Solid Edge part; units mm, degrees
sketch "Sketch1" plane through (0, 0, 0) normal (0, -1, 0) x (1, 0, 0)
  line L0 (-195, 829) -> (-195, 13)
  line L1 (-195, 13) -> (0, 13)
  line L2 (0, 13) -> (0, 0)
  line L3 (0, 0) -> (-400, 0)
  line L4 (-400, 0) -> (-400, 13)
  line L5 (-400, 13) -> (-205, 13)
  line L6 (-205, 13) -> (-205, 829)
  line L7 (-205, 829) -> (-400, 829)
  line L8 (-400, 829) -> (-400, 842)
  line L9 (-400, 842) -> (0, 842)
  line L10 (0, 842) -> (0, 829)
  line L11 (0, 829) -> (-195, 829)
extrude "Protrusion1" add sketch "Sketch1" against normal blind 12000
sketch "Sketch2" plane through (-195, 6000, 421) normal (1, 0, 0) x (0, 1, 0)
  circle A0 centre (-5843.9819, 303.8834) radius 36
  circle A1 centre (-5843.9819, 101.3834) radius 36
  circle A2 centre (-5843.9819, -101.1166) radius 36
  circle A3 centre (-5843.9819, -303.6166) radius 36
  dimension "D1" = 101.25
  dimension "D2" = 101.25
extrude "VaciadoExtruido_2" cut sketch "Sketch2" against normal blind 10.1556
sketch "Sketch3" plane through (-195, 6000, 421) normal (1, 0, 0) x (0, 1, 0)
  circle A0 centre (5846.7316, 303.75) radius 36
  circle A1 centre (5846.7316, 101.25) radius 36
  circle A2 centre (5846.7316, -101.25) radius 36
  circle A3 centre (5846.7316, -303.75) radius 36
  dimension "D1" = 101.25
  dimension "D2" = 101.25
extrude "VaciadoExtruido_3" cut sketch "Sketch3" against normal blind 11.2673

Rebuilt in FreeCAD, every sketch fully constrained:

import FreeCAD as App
import Part
import Sketcher

doc = App.newDocument("Part")
body = doc.addObject("PartDesign::Body", "Body")

# Sketch on XZ plane
sketch1 = body.newObject("Sketcher::SketchObject", "Sketch")
sketch1.AttachmentSupport = (doc.getObject("XZ_Plane"), [""])
sketch1.MapMode = "FlatFace"
sketch1.addGeometry([
    Part.LineSegment(App.Vector(-195, 13, 0), App.Vector(-195, 829, 0)),  # 0
    Part.LineSegment(App.Vector(-195, 829, 0), App.Vector(0, 829, 0)),  # 1
    Part.LineSegment(App.Vector(0, 829, 0), App.Vector(0, 842, 0)),  # 2
    Part.LineSegment(App.Vector(0, 842, 0), App.Vector(-400, 842, 0)),  # 3
    Part.LineSegment(App.Vector(-400, 842, 0), App.Vector(-400, 829, 0)),  # 4
    Part.LineSegment(App.Vector(-400, 829, 0), App.Vector(-205, 829, 0)),  # 5
    Part.LineSegment(App.Vector(-205, 829, 0), App.Vector(-205, 13, 0)),  # 6
    Part.LineSegment(App.Vector(-205, 13, 0), App.Vector(-400, 13, 0)),  # 7
    Part.LineSegment(App.Vector(-400, 13, 0), App.Vector(-400, 0, 0)),  # 8
    Part.LineSegment(App.Vector(-400, 0, 0), App.Vector(0, 0, 0)),  # 9
    Part.LineSegment(App.Vector(0, 0, 0), App.Vector(0, 13, 0)),  # 10
    Part.LineSegment(App.Vector(0, 13, 0), App.Vector(-195, 13, 0)),  # 11
], False)
sketch1.addConstraint([
    Sketcher.Constraint("Coincident", 0, 2, 1, 1),
    Sketcher.Constraint("Coincident", 1, 2, 2, 1),
    Sketcher.Constraint("Coincident", 2, 2, 3, 1),
    Sketcher.Constraint("Coincident", 3, 2, 4, 1),
    Sketcher.Constraint("Coincident", 4, 2, 5, 1),
    Sketcher.Constraint("Coincident", 5, 2, 6, 1),
    Sketcher.Constraint("Coincident", 6, 2, 7, 1),
    Sketcher.Constraint("Coincident", 7, 2, 8, 1),
    Sketcher.Constraint("Coincident", 8, 2, 9, 1),
    Sketcher.Constraint("Coincident", 9, 2, 10, 1),
    Sketcher.Constraint("Coincident", 10, 2, 11, 1),
    Sketcher.Constraint("Coincident", 11, 2, 0, 1),
    Sketcher.Constraint("Vertical", 0),
    Sketcher.Constraint("Horizontal", 1),
    Sketcher.Constraint("Vertical", 2),
    Sketcher.Constraint("Horizontal", 3),
    Sketcher.Constraint("Vertical", 4),
    Sketcher.Constraint("Horizontal", 5),
    Sketcher.Constraint("Vertical", 6),
    Sketcher.Constraint("Horizontal", 7),
    Sketcher.Constraint("Vertical", 8),
    Sketcher.Constraint("Horizontal", 9),
    Sketcher.Constraint("Vertical", 10),
    Sketcher.Constraint("Horizontal", 11),
    Sketcher.Constraint("Coincident", 9, 2, -1, 1),
    Sketcher.Constraint("PointOnObject", 1, 2, -2),
    Sketcher.Constraint("Horizontal", 1, 2, 4, 2),
    Sketcher.Constraint("Horizontal", 7, 2, 10, 2),
    Sketcher.Constraint("Vertical", 4, 2, 7, 2),
    Sketcher.Constraint("Equal", 1, 5),
    Sketcher.Constraint("Equal", 4, 8),
    Sketcher.Constraint("DistanceX", 1, 1, 1, 2, 195.0),
    Sketcher.Constraint("DistanceX", 3, 2, 3, 1, 400.0),
    Sketcher.Constraint("DistanceY", 0, 1, 0, 2, 816.0),
    Sketcher.Constraint("DistanceY", 2, 1, 2, 2, 13.0),
])
pad1 = body.newObject("PartDesign::Pad", "Pad")
pad1.Profile = sketch1
pad1.Length = 12000
pad1.Reversed = True

# Sketch on YZ plane
sketch2 = body.newObject("Sketcher::SketchObject", "Sketch001")
sketch2.AttachmentSupport = (doc.getObject("YZ_Plane"), [""])
sketch2.MapMode = "FlatFace"
sketch2.AttachmentOffset = App.Placement(App.Vector(0, 0, -195), App.Rotation())
sketch2.addGeometry([
    Part.Circle(App.Vector(156, 725, 0), App.Vector(0, 0, 1), 36),
    Part.Circle(App.Vector(156, 522, 0), App.Vector(0, 0, 1), 36),
    Part.Circle(App.Vector(156, 320, 0), App.Vector(0, 0, 1), 36),
    Part.Circle(App.Vector(156, 117, 0), App.Vector(0, 0, 1), 36),
], False)
sketch2.addConstraint([
    Sketcher.Constraint("Equal", 0, 1),
    Sketcher.Constraint("Equal", 1, 2),
    Sketcher.Constraint("Equal", 2, 3),
    Sketcher.Constraint("Vertical", 0, 3, 1, 3),
    Sketcher.Constraint("Vertical", 1, 3, 2, 3),
    Sketcher.Constraint("Vertical", 2, 3, 3, 3),
    Sketcher.Constraint("Diameter", 0, 72.0),
    Sketcher.Constraint("DistanceY", 2, 3, 0, 3, 405.0),
    Sketcher.Constraint("DistanceY", 3, 3, 1, 3, 405.0),
    Sketcher.Constraint("DistanceY", 1, 3, 0, 3, 202.5),
    Sketcher.Constraint("DistanceX", -1, 1, 0, 3, 156.018),
    Sketcher.Constraint("DistanceY", -1, 1, 0, 3, 724.8834),
])
pocket1 = body.newObject("PartDesign::Pocket", "Pocket")
pocket1.Profile = sketch2
pocket1.Length = 10.1556

# Sketch on YZ plane
sketch3 = body.newObject("Sketcher::SketchObject", "Sketch002")
sketch3.AttachmentSupport = (doc.getObject("YZ_Plane"), [""])
sketch3.MapMode = "FlatFace"
sketch3.AttachmentOffset = App.Placement(App.Vector(0, 0, -195), App.Rotation())
sketch3.addGeometry([
    Part.Circle(App.Vector(11847, 725, 0), App.Vector(0, 0, 1), 36),
    Part.Circle(App.Vector(11847, 522, 0), App.Vector(0, 0, 1), 36),
    Part.Circle(App.Vector(11847, 320, 0), App.Vector(0, 0, 1), 36),
    Part.Circle(App.Vector(11847, 117, 0), App.Vector(0, 0, 1), 36),
], False)
sketch3.addConstraint([
    Sketcher.Constraint("Equal", 0, 1),
    Sketcher.Constraint("Equal", 1, 2),
    Sketcher.Constraint("Equal", 2, 3),
    Sketcher.Constraint("Vertical", 0, 3, 1, 3),
    Sketcher.Constraint("Vertical", 1, 3, 2, 3),
    Sketcher.Constraint("Vertical", 2, 3, 3, 3),
    Sketcher.Constraint("Diameter", 0, 72.0),
    Sketcher.Constraint("DistanceY", 2, 3, 0, 3, 405.0),
    Sketcher.Constraint("DistanceY", 3, 3, 1, 3, 405.0),
    Sketcher.Constraint("DistanceY", 1, 3, 0, 3, 202.5),
    Sketcher.Constraint("DistanceY", -1, 1, 0, 3, 724.75),
    Sketcher.Constraint("DistanceX", -1, 1, 0, 3, 11846.7316),
])
pocket2 = body.newObject("PartDesign::Pocket", "Pocket001")
pocket2.Profile = sketch3
pocket2.Length = 11.2673

doc.recompute()
